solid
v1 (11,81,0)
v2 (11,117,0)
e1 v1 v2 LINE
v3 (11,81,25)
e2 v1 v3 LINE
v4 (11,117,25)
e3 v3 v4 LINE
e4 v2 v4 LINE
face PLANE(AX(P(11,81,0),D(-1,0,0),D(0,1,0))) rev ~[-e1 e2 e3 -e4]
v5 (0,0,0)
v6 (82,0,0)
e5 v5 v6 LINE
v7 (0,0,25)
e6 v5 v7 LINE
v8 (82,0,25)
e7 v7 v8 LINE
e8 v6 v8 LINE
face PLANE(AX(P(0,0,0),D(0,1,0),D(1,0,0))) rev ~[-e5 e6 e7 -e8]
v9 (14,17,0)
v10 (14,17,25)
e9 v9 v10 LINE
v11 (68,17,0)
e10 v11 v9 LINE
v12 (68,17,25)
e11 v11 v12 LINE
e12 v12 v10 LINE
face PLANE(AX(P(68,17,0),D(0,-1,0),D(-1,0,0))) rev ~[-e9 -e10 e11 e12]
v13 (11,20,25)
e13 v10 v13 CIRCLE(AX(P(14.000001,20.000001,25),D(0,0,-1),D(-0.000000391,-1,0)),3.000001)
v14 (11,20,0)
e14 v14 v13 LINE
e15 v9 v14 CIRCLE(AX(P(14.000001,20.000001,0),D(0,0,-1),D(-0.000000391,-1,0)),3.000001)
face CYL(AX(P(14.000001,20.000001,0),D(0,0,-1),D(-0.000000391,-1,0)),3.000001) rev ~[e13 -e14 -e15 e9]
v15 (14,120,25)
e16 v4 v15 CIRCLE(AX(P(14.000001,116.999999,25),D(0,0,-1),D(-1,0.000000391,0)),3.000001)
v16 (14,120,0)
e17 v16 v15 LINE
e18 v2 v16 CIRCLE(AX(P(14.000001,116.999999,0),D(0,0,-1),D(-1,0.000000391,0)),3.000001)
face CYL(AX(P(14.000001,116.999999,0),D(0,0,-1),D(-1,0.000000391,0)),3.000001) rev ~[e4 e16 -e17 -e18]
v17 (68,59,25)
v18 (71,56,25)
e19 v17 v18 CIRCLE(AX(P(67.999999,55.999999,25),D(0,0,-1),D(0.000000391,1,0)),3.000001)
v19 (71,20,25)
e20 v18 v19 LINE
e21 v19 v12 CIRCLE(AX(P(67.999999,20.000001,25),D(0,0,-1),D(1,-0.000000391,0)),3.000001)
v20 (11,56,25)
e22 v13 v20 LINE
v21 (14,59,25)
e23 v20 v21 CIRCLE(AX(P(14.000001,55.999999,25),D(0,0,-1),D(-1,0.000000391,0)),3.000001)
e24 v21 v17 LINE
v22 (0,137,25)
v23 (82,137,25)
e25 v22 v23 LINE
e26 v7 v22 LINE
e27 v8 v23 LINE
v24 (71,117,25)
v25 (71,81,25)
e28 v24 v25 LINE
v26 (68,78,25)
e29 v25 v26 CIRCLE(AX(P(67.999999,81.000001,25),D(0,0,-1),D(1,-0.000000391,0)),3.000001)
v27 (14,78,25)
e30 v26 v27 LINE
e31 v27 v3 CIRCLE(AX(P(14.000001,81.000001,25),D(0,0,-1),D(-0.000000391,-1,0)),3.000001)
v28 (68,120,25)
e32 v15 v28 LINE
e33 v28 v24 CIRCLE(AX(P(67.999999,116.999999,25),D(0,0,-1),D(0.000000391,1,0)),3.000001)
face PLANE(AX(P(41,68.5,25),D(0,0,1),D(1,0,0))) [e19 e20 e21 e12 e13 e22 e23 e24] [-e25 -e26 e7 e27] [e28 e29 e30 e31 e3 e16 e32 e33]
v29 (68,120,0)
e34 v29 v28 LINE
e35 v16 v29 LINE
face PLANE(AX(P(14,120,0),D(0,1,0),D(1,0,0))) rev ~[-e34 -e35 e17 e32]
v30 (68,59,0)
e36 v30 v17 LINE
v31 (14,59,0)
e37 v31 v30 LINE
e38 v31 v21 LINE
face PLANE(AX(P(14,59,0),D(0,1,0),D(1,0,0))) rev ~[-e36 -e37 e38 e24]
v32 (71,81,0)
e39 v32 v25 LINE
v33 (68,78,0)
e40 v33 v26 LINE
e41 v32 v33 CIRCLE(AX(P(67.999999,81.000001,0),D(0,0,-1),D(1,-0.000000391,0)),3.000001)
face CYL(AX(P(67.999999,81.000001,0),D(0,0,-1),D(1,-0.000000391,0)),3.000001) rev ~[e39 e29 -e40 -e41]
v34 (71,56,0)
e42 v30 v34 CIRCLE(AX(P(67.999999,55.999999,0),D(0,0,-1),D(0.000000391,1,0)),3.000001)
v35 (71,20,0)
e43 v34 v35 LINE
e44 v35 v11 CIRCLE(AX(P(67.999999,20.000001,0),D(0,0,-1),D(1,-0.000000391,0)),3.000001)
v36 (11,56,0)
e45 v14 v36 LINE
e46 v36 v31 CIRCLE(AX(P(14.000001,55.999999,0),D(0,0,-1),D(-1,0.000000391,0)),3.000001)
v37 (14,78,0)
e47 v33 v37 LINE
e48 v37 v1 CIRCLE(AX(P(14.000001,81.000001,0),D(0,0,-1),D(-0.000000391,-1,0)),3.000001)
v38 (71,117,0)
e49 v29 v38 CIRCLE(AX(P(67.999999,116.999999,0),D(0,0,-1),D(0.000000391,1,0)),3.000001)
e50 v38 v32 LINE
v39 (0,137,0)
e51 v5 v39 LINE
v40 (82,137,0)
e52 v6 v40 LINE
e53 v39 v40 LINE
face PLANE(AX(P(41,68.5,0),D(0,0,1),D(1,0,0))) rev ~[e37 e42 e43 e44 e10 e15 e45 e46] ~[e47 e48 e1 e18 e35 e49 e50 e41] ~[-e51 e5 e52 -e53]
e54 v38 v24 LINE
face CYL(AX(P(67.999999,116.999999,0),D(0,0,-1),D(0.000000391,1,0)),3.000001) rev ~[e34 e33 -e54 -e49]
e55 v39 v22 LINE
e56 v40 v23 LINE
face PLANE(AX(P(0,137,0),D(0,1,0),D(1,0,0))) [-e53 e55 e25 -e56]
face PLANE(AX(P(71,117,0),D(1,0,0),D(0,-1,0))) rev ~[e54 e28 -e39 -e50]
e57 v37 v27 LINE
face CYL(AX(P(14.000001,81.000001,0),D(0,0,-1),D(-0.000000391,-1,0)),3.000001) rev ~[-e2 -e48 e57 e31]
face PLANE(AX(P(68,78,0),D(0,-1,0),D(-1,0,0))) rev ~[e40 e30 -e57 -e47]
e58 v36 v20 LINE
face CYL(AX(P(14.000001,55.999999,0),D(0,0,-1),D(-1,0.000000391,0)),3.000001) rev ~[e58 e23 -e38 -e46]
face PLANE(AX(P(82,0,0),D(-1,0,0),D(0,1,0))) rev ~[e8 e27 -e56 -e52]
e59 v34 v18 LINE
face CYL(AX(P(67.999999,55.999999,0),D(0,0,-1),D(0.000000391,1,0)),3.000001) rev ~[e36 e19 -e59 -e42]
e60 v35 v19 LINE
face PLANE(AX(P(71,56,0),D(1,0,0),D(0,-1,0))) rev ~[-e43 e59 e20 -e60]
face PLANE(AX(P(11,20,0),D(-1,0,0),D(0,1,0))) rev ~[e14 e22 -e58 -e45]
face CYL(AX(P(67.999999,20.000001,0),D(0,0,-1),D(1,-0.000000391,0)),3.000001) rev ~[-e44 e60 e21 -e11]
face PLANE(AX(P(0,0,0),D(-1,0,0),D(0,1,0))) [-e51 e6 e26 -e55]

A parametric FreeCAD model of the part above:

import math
import FreeCAD as App
import Part
import Sketcher
from FreeCAD import Vector

doc = App.newDocument("Part")
body = doc.addObject("PartDesign::Body", "Body")

sketch1 = body.newObject("Sketcher::SketchObject", "Sketch")
sketch1.AttachmentSupport = (doc.getObject("XY_Plane"), [""])
sketch1.MapMode = "FlatFace"
sketch1.addGeometry(Part.LineSegment(Vector(0, 137, 0), Vector(0, 0, 0)), False)
sketch1.addGeometry(Part.LineSegment(Vector(0, 0, 0), Vector(82, 0, 0)), False)
sketch1.addGeometry(Part.LineSegment(Vector(82, 0, 0), Vector(82, 137, 0)), False)
sketch1.addGeometry(Part.LineSegment(Vector(82, 137, 0), Vector(0, 137, 0)), False)
sketch1.addGeometry(Part.ArcOfCircle(Part.Circle(Vector(67.999999, 20.000001, 0), Vector(0, 0, 1), 3.000001), math.radians(-89.999978), math.radians(-0.000022)), False)
sketch1.addGeometry(Part.LineSegment(Vector(68, 17, 0), Vector(14, 17, 0)), False)
sketch1.addGeometry(Part.ArcOfCircle(Part.Circle(Vector(14.000001, 20.000001, 0), Vector(0, 0, 1), 3.000001), math.radians(-179.999978), math.radians(-90.000022)), False)
sketch1.addGeometry(Part.LineSegment(Vector(11, 20, 0), Vector(11, 56, 0)), False)
sketch1.addGeometry(Part.ArcOfCircle(Part.Circle(Vector(14.000001, 55.999999, 0), Vector(0, 0, 1), 3.000001), math.radians(90.000022), math.radians(179.999978)), False)
sketch1.addGeometry(Part.LineSegment(Vector(14, 59, 0), Vector(68, 59, 0)), False)
sketch1.addGeometry(Part.ArcOfCircle(Part.Circle(Vector(67.999999, 55.999999, 0), Vector(0, 0, 1), 3.000001), math.radians(0.000022), math.radians(89.999978)), False)
sketch1.addGeometry(Part.LineSegment(Vector(71, 56, 0), Vector(71, 20, 0)), False)
sketch1.addGeometry(Part.LineSegment(Vector(11, 81, 0), Vector(11, 117, 0)), False)
sketch1.addGeometry(Part.ArcOfCircle(Part.Circle(Vector(14.000001, 116.999999, 0), Vector(0, 0, 1), 3.000001), math.radians(90.000022), math.radians(179.999978)), False)
sketch1.addGeometry(Part.LineSegment(Vector(14, 120, 0), Vector(68, 120, 0)), False)
sketch1.addGeometry(Part.ArcOfCircle(Part.Circle(Vector(67.999999, 116.999999, 0), Vector(0, 0, 1), 3.000001), math.radians(0.000022), math.radians(89.999978)), False)
sketch1.addGeometry(Part.LineSegment(Vector(71, 117, 0), Vector(71, 81, 0)), False)
sketch1.addGeometry(Part.ArcOfCircle(Part.Circle(Vector(67.999999, 81.000001, 0), Vector(0, 0, 1), 3.000001), math.radians(-89.999978), math.radians(-0.000022)), False)
sketch1.addGeometry(Part.LineSegment(Vector(68, 78, 0), Vector(14, 78, 0)), False)
sketch1.addGeometry(Part.ArcOfCircle(Part.Circle(Vector(14.000001, 81.000001, 0), Vector(0, 0, 1), 3.000001), math.radians(-179.999978), math.radians(-90.000022)), False)
sketch1.addConstraint(Sketcher.Constraint("Coincident", 0, 2, 1, 1))
sketch1.addConstraint(Sketcher.Constraint("Coincident", 1, 2, 2, 1))
sketch1.addConstraint(Sketcher.Constraint("Coincident", 2, 2, 3, 1))
sketch1.addConstraint(Sketcher.Constraint("Coincident", 3, 2, 0, 1))
sketch1.addConstraint(Sketcher.Constraint("Tangent", 4, 1, 5, 1))
sketch1.addConstraint(Sketcher.Constraint("Tangent", 5, 2, 6, 2))
sketch1.addConstraint(Sketcher.Constraint("Tangent", 6, 1, 7, 1))
sketch1.addConstraint(Sketcher.Constraint("Tangent", 7, 2, 8, 2))
sketch1.addConstraint(Sketcher.Constraint("Tangent", 8, 1, 9, 1))
sketch1.addConstraint(Sketcher.Constraint("Tangent", 9, 2, 10, 2))
sketch1.addConstraint(Sketcher.Constraint("Tangent", 10, 1, 11, 1))
sketch1.addConstraint(Sketcher.Constraint("Tangent", 11, 2, 4, 2))
sketch1.addConstraint(Sketcher.Constraint("Tangent", 12, 2, 13, 2))
sketch1.addConstraint(Sketcher.Constraint("Tangent", 13, 1, 14, 1))
sketch1.addConstraint(Sketcher.Constraint("Tangent", 14, 2, 15, 2))
sketch1.addConstraint(Sketcher.Constraint("Tangent", 15, 1, 16, 1))
sketch1.addConstraint(Sketcher.Constraint("Tangent", 16, 2, 17, 2))
sketch1.addConstraint(Sketcher.Constraint("Tangent", 17, 1, 18, 1))
sketch1.addConstraint(Sketcher.Constraint("Tangent", 18, 2, 19, 2))
sketch1.addConstraint(Sketcher.Constraint("Tangent", 19, 1, 12, 1))
sketch1.addConstraint(Sketcher.Constraint("Vertical", 0))
sketch1.addConstraint(Sketcher.Constraint("Horizontal", 1))
sketch1.addConstraint(Sketcher.Constraint("Vertical", 2))
sketch1.addConstraint(Sketcher.Constraint("Horizontal", 3))
sketch1.addConstraint(Sketcher.Constraint("Horizontal", 5))
sketch1.addConstraint(Sketcher.Constraint("Vertical", 7))
sketch1.addConstraint(Sketcher.Constraint("Horizontal", 9))
sketch1.addConstraint(Sketcher.Constraint("Vertical", 11))
sketch1.addConstraint(Sketcher.Constraint("Vertical", 12))
sketch1.addConstraint(Sketcher.Constraint("Horizontal", 14))
sketch1.addConstraint(Sketcher.Constraint("Vertical", 16))
sketch1.addConstraint(Sketcher.Constraint("Horizontal", 18))
sketch1.addConstraint(Sketcher.Constraint("Coincident", 0, 2, -1, 1))
sketch1.addConstraint(Sketcher.Constraint("Equal", 4, 6))
sketch1.addConstraint(Sketcher.Constraint("Equal", 6, 8))
sketch1.addConstraint(Sketcher.Constraint("Equal", 8, 10))
sketch1.addConstraint(Sketcher.Constraint("Equal", 10, 13))
sketch1.addConstraint(Sketcher.Constraint("Equal", 13, 15))
sketch1.addConstraint(Sketcher.Constraint("Equal", 15, 17))
sketch1.addConstraint(Sketcher.Constraint("Equal", 17, 19))
sketch1.addConstraint(Sketcher.Constraint("Vertical", 8, 3, 13, 3))
sketch1.addConstraint(Sketcher.Constraint("Vertical", 10, 3, 15, 3))
sketch1.addConstraint(Sketcher.Constraint("Equal", 11, 12))
sketch1.addConstraint(Sketcher.Constraint("Radius", 4, 3.000001))
sketch1.addConstraint(Sketcher.Constraint("DistanceX", 1, 1, 1, 2, 82.0))
sketch1.addConstraint(Sketcher.Constraint("DistanceX", 5, 2, 5, 1, 54.0))
sketch1.addConstraint(Sketcher.Constraint("DistanceY", 0, 2, 0, 1, 137.0))
sketch1.addConstraint(Sketcher.Constraint("DistanceY", 7, 1, 7, 2, 36.0))
sketch1.addConstraint(Sketcher.Constraint("DistanceX", -1, 1, 4, 3, 67.999999))
sketch1.addConstraint(Sketcher.Constraint("DistanceY", -1, 1, 4, 3, 20.000001))
sketch1.addConstraint(Sketcher.Constraint("DistanceY", -1, 1, 13, 3, 116.999999))
pad1 = body.newObject("PartDesign::Pad", "Pad")
pad1.Profile = sketch1
pad1.Length = 25

doc.recompute()
